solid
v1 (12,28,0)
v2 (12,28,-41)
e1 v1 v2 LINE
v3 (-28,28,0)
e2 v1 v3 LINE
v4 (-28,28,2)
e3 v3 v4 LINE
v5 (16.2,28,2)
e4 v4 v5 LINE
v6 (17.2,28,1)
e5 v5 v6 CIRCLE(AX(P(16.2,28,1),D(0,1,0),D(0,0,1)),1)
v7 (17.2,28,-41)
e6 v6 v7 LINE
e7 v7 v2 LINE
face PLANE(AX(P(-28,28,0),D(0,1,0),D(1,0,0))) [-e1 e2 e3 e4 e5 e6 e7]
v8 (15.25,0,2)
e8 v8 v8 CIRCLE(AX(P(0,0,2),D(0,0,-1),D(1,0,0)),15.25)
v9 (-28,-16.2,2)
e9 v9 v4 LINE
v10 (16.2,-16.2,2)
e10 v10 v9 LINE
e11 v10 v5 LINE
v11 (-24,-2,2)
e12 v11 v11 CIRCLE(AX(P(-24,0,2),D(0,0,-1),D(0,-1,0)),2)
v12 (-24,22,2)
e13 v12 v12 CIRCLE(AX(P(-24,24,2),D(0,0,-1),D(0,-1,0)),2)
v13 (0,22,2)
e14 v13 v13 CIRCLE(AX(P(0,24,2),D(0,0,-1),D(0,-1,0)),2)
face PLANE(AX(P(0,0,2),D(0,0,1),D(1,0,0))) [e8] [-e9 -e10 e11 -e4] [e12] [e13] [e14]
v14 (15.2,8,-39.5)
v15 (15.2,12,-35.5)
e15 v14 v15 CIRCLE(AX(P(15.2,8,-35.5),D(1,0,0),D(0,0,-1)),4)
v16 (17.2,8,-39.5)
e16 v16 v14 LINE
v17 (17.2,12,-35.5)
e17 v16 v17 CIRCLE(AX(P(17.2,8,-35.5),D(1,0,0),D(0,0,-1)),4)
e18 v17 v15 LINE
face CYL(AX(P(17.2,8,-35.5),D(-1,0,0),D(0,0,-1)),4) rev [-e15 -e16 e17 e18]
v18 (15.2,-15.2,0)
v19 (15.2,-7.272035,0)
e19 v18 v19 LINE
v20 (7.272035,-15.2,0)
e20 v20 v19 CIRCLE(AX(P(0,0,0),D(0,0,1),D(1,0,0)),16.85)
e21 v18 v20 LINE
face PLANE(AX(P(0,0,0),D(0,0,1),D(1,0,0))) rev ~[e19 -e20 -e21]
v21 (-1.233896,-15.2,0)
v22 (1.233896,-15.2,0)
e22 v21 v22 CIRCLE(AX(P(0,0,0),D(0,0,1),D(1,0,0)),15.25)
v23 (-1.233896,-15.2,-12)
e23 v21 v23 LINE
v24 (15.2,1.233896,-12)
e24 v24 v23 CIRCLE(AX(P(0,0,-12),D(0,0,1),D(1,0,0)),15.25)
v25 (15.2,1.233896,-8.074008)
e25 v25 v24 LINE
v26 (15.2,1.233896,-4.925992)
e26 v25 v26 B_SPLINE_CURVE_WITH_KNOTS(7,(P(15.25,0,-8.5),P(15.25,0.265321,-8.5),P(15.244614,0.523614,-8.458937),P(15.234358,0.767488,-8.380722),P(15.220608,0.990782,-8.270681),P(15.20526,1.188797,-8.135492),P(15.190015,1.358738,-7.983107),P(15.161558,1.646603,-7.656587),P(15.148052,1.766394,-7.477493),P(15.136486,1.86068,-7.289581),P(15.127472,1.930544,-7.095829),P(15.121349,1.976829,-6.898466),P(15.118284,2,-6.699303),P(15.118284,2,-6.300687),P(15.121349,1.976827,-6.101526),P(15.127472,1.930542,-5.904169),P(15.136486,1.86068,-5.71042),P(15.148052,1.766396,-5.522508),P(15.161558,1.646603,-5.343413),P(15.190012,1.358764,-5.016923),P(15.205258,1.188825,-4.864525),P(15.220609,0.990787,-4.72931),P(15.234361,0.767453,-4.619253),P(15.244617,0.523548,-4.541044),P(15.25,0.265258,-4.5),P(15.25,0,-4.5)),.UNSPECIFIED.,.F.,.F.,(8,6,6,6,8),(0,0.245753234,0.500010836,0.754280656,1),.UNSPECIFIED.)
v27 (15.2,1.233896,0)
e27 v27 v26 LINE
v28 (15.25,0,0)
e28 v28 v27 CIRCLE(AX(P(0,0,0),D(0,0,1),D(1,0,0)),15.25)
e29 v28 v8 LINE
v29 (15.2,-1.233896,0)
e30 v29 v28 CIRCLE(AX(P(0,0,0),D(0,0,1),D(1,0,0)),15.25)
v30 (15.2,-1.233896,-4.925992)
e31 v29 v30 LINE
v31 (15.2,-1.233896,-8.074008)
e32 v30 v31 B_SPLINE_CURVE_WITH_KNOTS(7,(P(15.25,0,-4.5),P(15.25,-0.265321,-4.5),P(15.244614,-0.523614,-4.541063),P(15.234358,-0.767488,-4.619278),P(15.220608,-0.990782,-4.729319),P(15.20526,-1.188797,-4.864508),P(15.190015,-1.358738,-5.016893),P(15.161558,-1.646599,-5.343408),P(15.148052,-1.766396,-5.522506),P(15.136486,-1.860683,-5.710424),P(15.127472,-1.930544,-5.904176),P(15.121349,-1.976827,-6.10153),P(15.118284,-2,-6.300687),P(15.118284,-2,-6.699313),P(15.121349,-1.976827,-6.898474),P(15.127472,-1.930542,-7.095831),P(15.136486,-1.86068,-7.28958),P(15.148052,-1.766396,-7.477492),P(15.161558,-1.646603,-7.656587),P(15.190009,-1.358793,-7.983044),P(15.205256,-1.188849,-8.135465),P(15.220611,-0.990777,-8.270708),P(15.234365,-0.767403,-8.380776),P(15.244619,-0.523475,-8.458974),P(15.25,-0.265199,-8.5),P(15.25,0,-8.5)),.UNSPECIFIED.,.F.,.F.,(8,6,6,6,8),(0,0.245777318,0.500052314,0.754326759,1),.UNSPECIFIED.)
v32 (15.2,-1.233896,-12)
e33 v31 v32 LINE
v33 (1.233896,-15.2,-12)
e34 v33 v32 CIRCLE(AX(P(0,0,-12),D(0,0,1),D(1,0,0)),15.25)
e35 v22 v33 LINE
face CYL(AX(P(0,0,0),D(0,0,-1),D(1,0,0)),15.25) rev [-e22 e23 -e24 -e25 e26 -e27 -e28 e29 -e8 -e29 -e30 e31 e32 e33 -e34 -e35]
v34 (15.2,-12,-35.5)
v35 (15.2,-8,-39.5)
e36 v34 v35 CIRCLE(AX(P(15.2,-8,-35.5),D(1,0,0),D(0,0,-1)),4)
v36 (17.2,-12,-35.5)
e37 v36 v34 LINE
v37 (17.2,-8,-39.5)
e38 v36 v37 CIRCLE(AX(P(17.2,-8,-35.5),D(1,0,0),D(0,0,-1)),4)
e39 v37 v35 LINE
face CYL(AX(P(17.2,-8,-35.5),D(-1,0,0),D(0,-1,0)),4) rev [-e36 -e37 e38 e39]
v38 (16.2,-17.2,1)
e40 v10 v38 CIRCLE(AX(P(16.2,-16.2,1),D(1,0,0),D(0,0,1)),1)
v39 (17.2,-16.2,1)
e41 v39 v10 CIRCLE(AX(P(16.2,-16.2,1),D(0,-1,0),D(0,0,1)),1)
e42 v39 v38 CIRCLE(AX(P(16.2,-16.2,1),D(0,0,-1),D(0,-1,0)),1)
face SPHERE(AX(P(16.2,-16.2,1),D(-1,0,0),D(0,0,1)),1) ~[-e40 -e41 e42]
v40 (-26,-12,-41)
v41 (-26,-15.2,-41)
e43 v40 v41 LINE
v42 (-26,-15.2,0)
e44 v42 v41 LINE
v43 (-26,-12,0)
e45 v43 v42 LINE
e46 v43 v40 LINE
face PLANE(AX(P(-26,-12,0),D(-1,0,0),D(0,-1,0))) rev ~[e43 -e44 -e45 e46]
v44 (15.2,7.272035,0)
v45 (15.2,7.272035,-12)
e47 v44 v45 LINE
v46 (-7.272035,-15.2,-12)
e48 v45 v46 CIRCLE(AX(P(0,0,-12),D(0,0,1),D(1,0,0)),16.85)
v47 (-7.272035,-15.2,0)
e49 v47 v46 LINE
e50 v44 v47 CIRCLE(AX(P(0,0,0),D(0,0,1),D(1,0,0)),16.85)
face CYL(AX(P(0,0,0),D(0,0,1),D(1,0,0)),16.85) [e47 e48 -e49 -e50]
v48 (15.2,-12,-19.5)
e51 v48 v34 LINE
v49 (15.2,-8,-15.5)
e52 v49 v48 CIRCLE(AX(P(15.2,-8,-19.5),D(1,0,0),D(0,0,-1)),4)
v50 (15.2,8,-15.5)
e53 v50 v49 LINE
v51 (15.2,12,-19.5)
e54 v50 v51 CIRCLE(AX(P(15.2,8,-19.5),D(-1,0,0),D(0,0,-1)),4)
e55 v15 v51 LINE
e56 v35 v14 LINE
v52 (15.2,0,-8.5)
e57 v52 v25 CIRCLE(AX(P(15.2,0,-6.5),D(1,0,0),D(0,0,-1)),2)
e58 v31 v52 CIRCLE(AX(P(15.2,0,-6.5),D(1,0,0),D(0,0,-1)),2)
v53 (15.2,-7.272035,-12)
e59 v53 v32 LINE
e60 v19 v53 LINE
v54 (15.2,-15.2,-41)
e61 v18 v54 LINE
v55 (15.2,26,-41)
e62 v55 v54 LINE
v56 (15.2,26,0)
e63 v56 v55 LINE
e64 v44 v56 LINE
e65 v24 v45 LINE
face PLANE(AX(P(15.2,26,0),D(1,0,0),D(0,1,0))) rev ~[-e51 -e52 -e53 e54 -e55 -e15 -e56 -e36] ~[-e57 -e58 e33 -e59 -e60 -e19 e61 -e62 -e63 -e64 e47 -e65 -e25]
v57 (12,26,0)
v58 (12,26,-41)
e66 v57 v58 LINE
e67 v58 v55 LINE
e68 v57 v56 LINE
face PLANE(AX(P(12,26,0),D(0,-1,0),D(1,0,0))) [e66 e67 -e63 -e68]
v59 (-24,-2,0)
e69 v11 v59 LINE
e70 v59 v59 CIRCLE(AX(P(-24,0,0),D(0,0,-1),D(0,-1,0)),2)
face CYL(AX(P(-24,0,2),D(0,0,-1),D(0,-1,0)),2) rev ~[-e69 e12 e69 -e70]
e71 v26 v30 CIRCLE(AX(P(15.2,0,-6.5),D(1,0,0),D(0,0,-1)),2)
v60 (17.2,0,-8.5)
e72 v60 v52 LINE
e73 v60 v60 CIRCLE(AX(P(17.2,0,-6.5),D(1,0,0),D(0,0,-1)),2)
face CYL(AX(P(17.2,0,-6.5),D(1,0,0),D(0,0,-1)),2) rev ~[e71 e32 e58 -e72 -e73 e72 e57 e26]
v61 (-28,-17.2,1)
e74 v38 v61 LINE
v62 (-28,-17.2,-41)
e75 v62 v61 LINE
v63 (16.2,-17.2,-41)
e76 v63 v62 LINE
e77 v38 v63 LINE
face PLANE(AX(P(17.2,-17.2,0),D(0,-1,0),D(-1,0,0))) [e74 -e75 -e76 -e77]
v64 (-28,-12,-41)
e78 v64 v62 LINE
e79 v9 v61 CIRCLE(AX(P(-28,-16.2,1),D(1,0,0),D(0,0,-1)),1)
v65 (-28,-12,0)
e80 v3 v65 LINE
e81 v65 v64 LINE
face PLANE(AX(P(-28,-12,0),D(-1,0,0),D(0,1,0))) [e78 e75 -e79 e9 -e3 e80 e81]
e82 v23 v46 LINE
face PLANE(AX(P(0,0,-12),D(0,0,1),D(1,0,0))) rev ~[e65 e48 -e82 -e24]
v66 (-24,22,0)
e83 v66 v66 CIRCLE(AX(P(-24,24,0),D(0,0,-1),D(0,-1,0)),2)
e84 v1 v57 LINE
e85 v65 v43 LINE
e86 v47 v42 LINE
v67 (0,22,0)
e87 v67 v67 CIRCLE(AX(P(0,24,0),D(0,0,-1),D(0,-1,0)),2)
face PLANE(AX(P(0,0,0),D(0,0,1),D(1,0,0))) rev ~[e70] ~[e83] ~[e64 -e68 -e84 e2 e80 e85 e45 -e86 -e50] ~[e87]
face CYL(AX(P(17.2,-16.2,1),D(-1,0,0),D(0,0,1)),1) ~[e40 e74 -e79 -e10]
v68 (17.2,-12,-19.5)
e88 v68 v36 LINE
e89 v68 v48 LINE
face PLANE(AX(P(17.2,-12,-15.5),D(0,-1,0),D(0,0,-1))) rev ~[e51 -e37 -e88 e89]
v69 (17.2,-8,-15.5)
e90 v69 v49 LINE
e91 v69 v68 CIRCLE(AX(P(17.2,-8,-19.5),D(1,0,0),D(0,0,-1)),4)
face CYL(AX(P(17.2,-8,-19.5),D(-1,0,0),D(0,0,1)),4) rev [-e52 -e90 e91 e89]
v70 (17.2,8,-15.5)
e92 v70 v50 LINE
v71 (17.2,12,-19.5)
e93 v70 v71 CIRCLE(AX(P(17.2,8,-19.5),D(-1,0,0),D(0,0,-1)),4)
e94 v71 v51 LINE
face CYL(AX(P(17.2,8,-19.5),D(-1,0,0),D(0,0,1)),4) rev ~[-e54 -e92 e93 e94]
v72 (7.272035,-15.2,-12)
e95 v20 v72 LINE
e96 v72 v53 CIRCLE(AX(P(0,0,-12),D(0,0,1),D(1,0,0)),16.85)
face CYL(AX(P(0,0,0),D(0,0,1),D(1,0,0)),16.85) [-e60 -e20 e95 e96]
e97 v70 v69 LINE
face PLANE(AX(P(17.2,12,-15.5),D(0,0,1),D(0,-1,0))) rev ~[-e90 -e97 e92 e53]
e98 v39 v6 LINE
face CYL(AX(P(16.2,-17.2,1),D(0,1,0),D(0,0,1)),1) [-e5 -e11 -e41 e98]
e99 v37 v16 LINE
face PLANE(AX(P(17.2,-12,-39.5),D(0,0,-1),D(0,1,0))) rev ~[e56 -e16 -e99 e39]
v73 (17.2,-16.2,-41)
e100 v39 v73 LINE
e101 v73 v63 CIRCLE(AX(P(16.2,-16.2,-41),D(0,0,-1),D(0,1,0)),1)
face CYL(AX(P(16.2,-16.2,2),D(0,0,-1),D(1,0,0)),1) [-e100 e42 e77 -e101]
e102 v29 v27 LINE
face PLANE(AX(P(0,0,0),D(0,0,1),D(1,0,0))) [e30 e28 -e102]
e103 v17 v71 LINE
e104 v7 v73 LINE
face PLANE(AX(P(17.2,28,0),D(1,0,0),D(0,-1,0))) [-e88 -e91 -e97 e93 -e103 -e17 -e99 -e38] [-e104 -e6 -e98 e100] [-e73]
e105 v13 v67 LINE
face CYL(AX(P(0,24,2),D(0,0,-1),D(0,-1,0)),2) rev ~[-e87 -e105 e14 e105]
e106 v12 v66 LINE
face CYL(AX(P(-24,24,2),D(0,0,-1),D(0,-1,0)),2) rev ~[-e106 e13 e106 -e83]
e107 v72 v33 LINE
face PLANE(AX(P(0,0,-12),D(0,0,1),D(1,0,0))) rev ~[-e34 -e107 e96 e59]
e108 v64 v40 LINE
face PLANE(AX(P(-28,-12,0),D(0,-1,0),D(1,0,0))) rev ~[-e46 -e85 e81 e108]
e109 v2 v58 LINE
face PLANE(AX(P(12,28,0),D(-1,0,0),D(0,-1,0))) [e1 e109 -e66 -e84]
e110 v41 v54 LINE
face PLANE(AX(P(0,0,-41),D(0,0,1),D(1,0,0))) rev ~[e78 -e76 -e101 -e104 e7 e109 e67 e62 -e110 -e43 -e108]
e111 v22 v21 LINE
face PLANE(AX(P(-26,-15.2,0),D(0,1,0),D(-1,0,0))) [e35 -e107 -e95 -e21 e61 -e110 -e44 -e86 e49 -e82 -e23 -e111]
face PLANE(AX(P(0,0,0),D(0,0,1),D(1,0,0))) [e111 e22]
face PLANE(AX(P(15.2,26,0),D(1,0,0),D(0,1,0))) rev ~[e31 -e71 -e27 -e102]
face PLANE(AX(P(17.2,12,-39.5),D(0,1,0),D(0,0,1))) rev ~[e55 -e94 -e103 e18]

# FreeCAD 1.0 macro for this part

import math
import FreeCAD as App
import Part
import Sketcher
Q = App.Units.Quantity


def edges_at(feature, points):
    """Names of the edges that pass closest to the given points."""
    edges = feature.Shape.Edges
    near = lambda p: min(range(len(edges)), key=lambda i: edges[i].distToShape(Part.Vertex(*p))[0])
    return sorted({f"Edge{near(p) + 1}" for p in points})

doc = App.newDocument("Part")
body = doc.addObject("PartDesign::Body", "Body")

sketch1 = body.newObject("Sketcher::SketchObject", "Sketch")
sketch1.AttachmentSupport = (doc.getObject("XY_Plane"), [""])
sketch1.MapMode = "FlatFace"
sketch1.addGeometry([
    Part.LineSegment(App.Vector(-28, 28, 0), App.Vector(-28, -17, 0)),
    Part.LineSegment(App.Vector(-28, -17, 0), App.Vector(17, -17, 0)),
    Part.LineSegment(App.Vector(17, -17, 0), App.Vector(17, 28, 0)),
    Part.LineSegment(App.Vector(17, 28, 0), App.Vector(-28, 28, 0)),
    Part.Circle(App.Vector(0, 0, 0), App.Vector(0, 0, 1), 15),
], False)
sketch1.addConstraint([
    Sketcher.Constraint("Coincident", 0, 2, 1, 1),
    Sketcher.Constraint("Coincident", 1, 2, 2, 1),
    Sketcher.Constraint("Coincident", 2, 2, 3, 1),
    Sketcher.Constraint("Coincident", 3, 2, 0, 1),
    Sketcher.Constraint("Vertical", 0),
    Sketcher.Constraint("Horizontal", 1),
    Sketcher.Constraint("Vertical", 2),
    Sketcher.Constraint("Horizontal", 3),
    Sketcher.Constraint("Coincident", 4, 3, -1, 1),
    Sketcher.Constraint("Equal", 3, 0),
    Sketcher.Constraint("Diameter", 4, Q("30.5 mm")),
    Sketcher.Constraint("DistanceX", 1, 1, 1, 2, Q("45.2 mm")),
    Sketcher.Constraint("DistanceX", 0, 2, -1, 1, Q("28 mm")),
    Sketcher.Constraint("DistanceY", -1, 1, 2, 2, Q("28 mm")),
])
pad1 = body.newObject("PartDesign::Pad", "Pad")
pad1.Profile = sketch1
pad1.Length = 2

sketch2 = body.newObject("Sketcher::SketchObject", "Sketch001")
sketch2.AttachmentSupport = (doc.getObject("XY_Plane"), [""])
sketch2.MapMode = "FlatFace"
sketch2.AttachmentOffset = App.Placement(App.Vector(0, 0, 2), App.Rotation())
sketch2.addGeometry([
    Part.Circle(App.Vector(0, 24, 0), App.Vector(0, 0, 1), 2),
    Part.Circle(App.Vector(-24, 24, 0), App.Vector(0, 0, 1), 2),
    Part.Circle(App.Vector(-24, 0, 0), App.Vector(0, 0, 1), 2),
], False)
sketch2.addConstraint([
    Sketcher.Constraint("Equal", 0, 1),
    Sketcher.Constraint("Equal", 1, 2),
    Sketcher.Constraint("PointOnObject", 0, 3, -2),
    Sketcher.Constraint("PointOnObject", 2, 3, -1),
    Sketcher.Constraint("Horizontal", 0, 3, 1, 3),
    Sketcher.Constraint("Vertical", 1, 3, 2, 3),
    Sketcher.Constraint("Diameter", 0, Q("4 mm")),
    Sketcher.Constraint("DistanceY", -1, 1, 0, 3, Q("24 mm")),
    Sketcher.Constraint("DistanceX", 1, 3, -1, 1, Q("24 mm")),
])
doc.recompute()
hole = body.newObject("PartDesign::Hole", "Hole")
hole.Profile = sketch2
hole.ThreadType = "None"
hole.Diameter = 4
hole.DepthType = "ThroughAll"

sketch3 = body.newObject("Sketcher::SketchObject", "Sketch002")
sketch3.AttachmentSupport = (doc.getObject("XY_Plane"), [""])
sketch3.MapMode = "FlatFace"
sketch3.addGeometry([
    Part.LineSegment(App.Vector(15.2, 28, 0), App.Vector(15.2, -15.2, 0)),
    Part.LineSegment(App.Vector(15.2, -15.2, 0), App.Vector(-28, -15.2, 0)),
    Part.LineSegment(App.Vector(-28, -15.2, 0), App.Vector(-28, -17.2, 0)),
    Part.LineSegment(App.Vector(-28, -17.2, 0), App.Vector(17.2, -17.2, 0)),
    Part.LineSegment(App.Vector(17.2, -17.2, 0), App.Vector(17.2, 28, 0)),
    Part.LineSegment(App.Vector(17.2, 28, 0), App.Vector(15.2, 28, 0)),
], False)
sketch3.addConstraint([
    Sketcher.Constraint("Coincident", 0, 2, 1, 1),
    Sketcher.Constraint("Coincident", 1, 2, 2, 1),
    Sketcher.Constraint("Coincident", 2, 2, 3, 1),
    Sketcher.Constraint("Coincident", 3, 2, 4, 1),
    Sketcher.Constraint("Coincident", 4, 2, 5, 1),
    Sketcher.Constraint("Coincident", 5, 2, 0, 1),
    Sketcher.Constraint("Vertical", 0),
    Sketcher.Constraint("Horizontal", 1),
    Sketcher.Constraint("Vertical", 2),
    Sketcher.Constraint("Horizontal", 3),
    Sketcher.Constraint("Vertical", 4),
    Sketcher.Constraint("Horizontal", 5),
    Sketcher.Constraint("Equal", 1, 0),
    Sketcher.Constraint("Equal", 5, 2),
    Sketcher.Constraint("DistanceX", 5, 2, 5, 1, Q("2 mm")),
    Sketcher.Constraint("DistanceX", 3, 1, 3, 2, Q("45.2 mm")),
    Sketcher.Constraint("DistanceX", 1, 2, -1, 1, Q("28 mm")),
    Sketcher.Constraint("DistanceY", -1, 1, 4, 2, Q("28 mm")),
])
pad2 = body.newObject("PartDesign::Pad", "Pad001")
pad2.Profile = sketch3
pad2.Length = 41
pad2.Reversed = True
doc.recompute()

fillet = body.newObject("PartDesign::Fillet", "Fillet")
fillet.Base = (pad2, edges_at(pad2, [(-5.4, -17.2, 2), (17.2, 5.4, 2), (17.2, -17.2, -19.5)]))
fillet.Radius = 1

sketch4 = body.newObject("Sketcher::SketchObject", "Sketch003")
sketch4.AttachmentSupport = (doc.getObject("XY_Plane"), [""])
sketch4.MapMode = "FlatFace"
sketch4.addGeometry([
    Part.LineSegment(App.Vector(15.2, 28, 0), App.Vector(12, 28, 0)),
    Part.LineSegment(App.Vector(12, 28, 0), App.Vector(12, 26, 0)),
    Part.LineSegment(App.Vector(12, 26, 0), App.Vector(15.2, 26, 0)),
    Part.LineSegment(App.Vector(15.2, 26, 0), App.Vector(15.2, 28, 0)),
    Part.LineSegment(App.Vector(-26, -12, 0), App.Vector(-28, -12, 0)),
    Part.LineSegment(App.Vector(-28, -12, 0), App.Vector(-28, -15.2, 0)),
    Part.LineSegment(App.Vector(-28, -15.2, 0), App.Vector(-26, -15.2, 0)),
    Part.LineSegment(App.Vector(-26, -15.2, 0), App.Vector(-26, -12, 0)),
], False)
sketch4.addConstraint([
    Sketcher.Constraint("Coincident", 0, 2, 1, 1),
    Sketcher.Constraint("Coincident", 1, 2, 2, 1),
    Sketcher.Constraint("Coincident", 2, 2, 3, 1),
    Sketcher.Constraint("Coincident", 3, 2, 0, 1),
    Sketcher.Constraint("Coincident", 4, 2, 5, 1),
    Sketcher.Constraint("Coincident", 5, 2, 6, 1),
    Sketcher.Constraint("Coincident", 6, 2, 7, 1),
    Sketcher.Constraint("Coincident", 7, 2, 4, 1),
    Sketcher.Constraint("Horizontal", 0),
    Sketcher.Constraint("Vertical", 1),
    Sketcher.Constraint("Horizontal", 2),
    Sketcher.Constraint("Vertical", 3),
    Sketcher.Constraint("Horizontal", 4),
    Sketcher.Constraint("Vertical", 5),
    Sketcher.Constraint("Horizontal", 6),
    Sketcher.Constraint("Vertical", 7),
    Sketcher.Constraint("Equal", 6, 1),
    Sketcher.Constraint("Equal", 2, 5),
    Sketcher.Constraint("DistanceX", 4, 2, 4, 1, Q("2 mm")),
    Sketcher.Constraint("DistanceX", -1, 1, 0, 2, Q("12 mm")),
    Sketcher.Constraint("DistanceY", 4, 2, -1, 1, Q("12 mm")),
    Sketcher.Constraint("DistanceX", 4, 2, 1, 2, Q("40 mm")),
    Sketcher.Constraint("DistanceY", 4, 2, 0, 2, Q("40 mm")),
    Sketcher.Constraint("DistanceX", 0, 2, 0, 1, Q("3.2 mm")),
])
pad3 = body.newObject("PartDesign::Pad", "Pad002")
pad3.Profile = sketch4
pad3.Length = 41
pad3.Reversed = True

sketch5 = body.newObject("Sketcher::SketchObject", "Sketch004")
sketch5.AttachmentSupport = (doc.getObject("XY_Plane"), [""])
sketch5.MapMode = "FlatFace"
sketch5.addGeometry([
    Part.LineSegment(App.Vector(15, 1, 0), App.Vector(15, 7, 0)),
    Part.ArcOfCircle(Part.Circle(App.Vector(0, 0, 0), App.Vector(0, 0, 1), 17), math.radians(26), math.radians(244)),
    Part.LineSegment(App.Vector(-7, -15, 0), App.Vector(-1, -15, 0)),
    Part.ArcOfCircle(Part.Circle(App.Vector(0, 0, 0), App.Vector(0, 0, 1), 15), math.radians(5), math.radians(265)),
    Part.LineSegment(App.Vector(1, -15, 0), App.Vector(7, -15, 0)),
    Part.ArcOfCircle(Part.Circle(App.Vector(0, 0, 0), App.Vector(0, 0, 1), 17), math.radians(-64), math.radians(-26)),
    Part.LineSegment(App.Vector(15, -7, 0), App.Vector(15, -1, 0)),
    Part.ArcOfCircle(Part.Circle(App.Vector(0, 0, 0), App.Vector(0, 0, 1), 15), math.radians(-85), math.radians(-5)),
], False)
sketch5.addConstraint([
    Sketcher.Constraint("Coincident", 0, 2, 1, 1),
    Sketcher.Constraint("Coincident", 1, 2, 2, 1),
    Sketcher.Constraint("Coincident", 2, 2, 3, 2),
    Sketcher.Constraint("Coincident", 3, 1, 0, 1),
    Sketcher.Constraint("Coincident", 4, 2, 5, 1),
    Sketcher.Constraint("Coincident", 5, 2, 6, 1),
    Sketcher.Constraint("Coincident", 6, 2, 7, 2),
    Sketcher.Constraint("Coincident", 7, 1, 4, 1),
    Sketcher.Constraint("Vertical", 0),
    Sketcher.Constraint("Horizontal", 2),
    Sketcher.Constraint("Horizontal", 4),
    Sketcher.Constraint("Vertical", 6),
    Sketcher.Constraint("Coincident", 1, 3, -1, 1),
    Sketcher.Constraint("Coincident", 3, 3, -1, 1),
    Sketcher.Constraint("Coincident", 5, 3, -1, 1),
    Sketcher.Constraint("Coincident", 7, 3, -1, 1),
    Sketcher.Constraint("Equal", 1, 5),
    Sketcher.Constraint("Equal", 3, 7),
    Sketcher.Constraint("Horizontal", 2, 2, 4, 2),
    Sketcher.Constraint("Vertical", 3, 1, 5, 2),
    Sketcher.Constraint("Equal", 4, 0),
    Sketcher.Constraint("Radius", 3, Q("15.25 mm")),
    Sketcher.Constraint("Radius", 1, Q("16.85 mm")),
    Sketcher.Constraint("DistanceX", -1, 1, 0, 2, Q("15.2 mm")),
])
pad4 = body.newObject("PartDesign::Pad", "Pad003")
pad4.Profile = sketch5
pad4.Length = 12
pad4.Reversed = True

sketch6 = body.newObject("Sketcher::SketchObject", "Sketch005")
sketch6.AttachmentSupport = (doc.getObject("YZ_Plane"), [""])
sketch6.MapMode = "FlatFace"
sketch6.AttachmentOffset = App.Placement(App.Vector(0, 0, 17.2), App.Rotation())
sketch6.addGeometry([
    Part.Circle(App.Vector(0, -6.5, 0), App.Vector(0, 0, 1), 2),
    Part.LineSegment(App.Vector(12, -15.5, 0), App.Vector(-12, -15.5, 0)),
    Part.LineSegment(App.Vector(-12, -15.5, 0), App.Vector(-12, -39.5, 0)),
    Part.LineSegment(App.Vector(-12, -39.5, 0), App.Vector(12, -39.5, 0)),
    Part.LineSegment(App.Vector(12, -39.5, 0), App.Vector(12, -15.5, 0)),
], False)
sketch6.addConstraint([
    Sketcher.Constraint("Coincident", 1, 2, 2, 1),
    Sketcher.Constraint("Coincident", 2, 2, 3, 1),
    Sketcher.Constraint("Coincident", 3, 2, 4, 1),
    Sketcher.Constraint("Coincident", 4, 2, 1, 1),
    Sketcher.Constraint("Horizontal", 1),
    Sketcher.Constraint("Vertical", 2),
    Sketcher.Constraint("Horizontal", 3),
    Sketcher.Constraint("Vertical", 4),
    Sketcher.Constraint("PointOnObject", 0, 3, -2),
    Sketcher.Constraint("Equal", 3, 2),
    Sketcher.Constraint("Diameter", 0, Q("4 mm")),
    Sketcher.Constraint("DistanceY", 0, 3, -1, 1, Q("6.5 mm")),
    Sketcher.Constraint("DistanceX", 1, 2, 1, 1, Q("24 mm")),
    Sketcher.Constraint("DistanceX", 1, 2, -1, 1, Q("12 mm")),
    Sketcher.Constraint("DistanceY", 1, 2, 0, 3, Q("9 mm")),
])
pocket1 = body.newObject("PartDesign::Pocket", "Pocket")
pocket1.Profile = sketch6
pocket1.Length = 3
doc.recompute()

fillet2 = body.newObject("PartDesign::Fillet", "Fillet001")
fillet2.Base = (pocket1, edges_at(pocket1, [
    (16.2, 12, -15.5),
    (16.2, -12, -15.5),
    (16.2, -12, -39.5),
    (16.2, 12, -39.5),
]))
fillet2.Radius = 4

doc.recompute()
